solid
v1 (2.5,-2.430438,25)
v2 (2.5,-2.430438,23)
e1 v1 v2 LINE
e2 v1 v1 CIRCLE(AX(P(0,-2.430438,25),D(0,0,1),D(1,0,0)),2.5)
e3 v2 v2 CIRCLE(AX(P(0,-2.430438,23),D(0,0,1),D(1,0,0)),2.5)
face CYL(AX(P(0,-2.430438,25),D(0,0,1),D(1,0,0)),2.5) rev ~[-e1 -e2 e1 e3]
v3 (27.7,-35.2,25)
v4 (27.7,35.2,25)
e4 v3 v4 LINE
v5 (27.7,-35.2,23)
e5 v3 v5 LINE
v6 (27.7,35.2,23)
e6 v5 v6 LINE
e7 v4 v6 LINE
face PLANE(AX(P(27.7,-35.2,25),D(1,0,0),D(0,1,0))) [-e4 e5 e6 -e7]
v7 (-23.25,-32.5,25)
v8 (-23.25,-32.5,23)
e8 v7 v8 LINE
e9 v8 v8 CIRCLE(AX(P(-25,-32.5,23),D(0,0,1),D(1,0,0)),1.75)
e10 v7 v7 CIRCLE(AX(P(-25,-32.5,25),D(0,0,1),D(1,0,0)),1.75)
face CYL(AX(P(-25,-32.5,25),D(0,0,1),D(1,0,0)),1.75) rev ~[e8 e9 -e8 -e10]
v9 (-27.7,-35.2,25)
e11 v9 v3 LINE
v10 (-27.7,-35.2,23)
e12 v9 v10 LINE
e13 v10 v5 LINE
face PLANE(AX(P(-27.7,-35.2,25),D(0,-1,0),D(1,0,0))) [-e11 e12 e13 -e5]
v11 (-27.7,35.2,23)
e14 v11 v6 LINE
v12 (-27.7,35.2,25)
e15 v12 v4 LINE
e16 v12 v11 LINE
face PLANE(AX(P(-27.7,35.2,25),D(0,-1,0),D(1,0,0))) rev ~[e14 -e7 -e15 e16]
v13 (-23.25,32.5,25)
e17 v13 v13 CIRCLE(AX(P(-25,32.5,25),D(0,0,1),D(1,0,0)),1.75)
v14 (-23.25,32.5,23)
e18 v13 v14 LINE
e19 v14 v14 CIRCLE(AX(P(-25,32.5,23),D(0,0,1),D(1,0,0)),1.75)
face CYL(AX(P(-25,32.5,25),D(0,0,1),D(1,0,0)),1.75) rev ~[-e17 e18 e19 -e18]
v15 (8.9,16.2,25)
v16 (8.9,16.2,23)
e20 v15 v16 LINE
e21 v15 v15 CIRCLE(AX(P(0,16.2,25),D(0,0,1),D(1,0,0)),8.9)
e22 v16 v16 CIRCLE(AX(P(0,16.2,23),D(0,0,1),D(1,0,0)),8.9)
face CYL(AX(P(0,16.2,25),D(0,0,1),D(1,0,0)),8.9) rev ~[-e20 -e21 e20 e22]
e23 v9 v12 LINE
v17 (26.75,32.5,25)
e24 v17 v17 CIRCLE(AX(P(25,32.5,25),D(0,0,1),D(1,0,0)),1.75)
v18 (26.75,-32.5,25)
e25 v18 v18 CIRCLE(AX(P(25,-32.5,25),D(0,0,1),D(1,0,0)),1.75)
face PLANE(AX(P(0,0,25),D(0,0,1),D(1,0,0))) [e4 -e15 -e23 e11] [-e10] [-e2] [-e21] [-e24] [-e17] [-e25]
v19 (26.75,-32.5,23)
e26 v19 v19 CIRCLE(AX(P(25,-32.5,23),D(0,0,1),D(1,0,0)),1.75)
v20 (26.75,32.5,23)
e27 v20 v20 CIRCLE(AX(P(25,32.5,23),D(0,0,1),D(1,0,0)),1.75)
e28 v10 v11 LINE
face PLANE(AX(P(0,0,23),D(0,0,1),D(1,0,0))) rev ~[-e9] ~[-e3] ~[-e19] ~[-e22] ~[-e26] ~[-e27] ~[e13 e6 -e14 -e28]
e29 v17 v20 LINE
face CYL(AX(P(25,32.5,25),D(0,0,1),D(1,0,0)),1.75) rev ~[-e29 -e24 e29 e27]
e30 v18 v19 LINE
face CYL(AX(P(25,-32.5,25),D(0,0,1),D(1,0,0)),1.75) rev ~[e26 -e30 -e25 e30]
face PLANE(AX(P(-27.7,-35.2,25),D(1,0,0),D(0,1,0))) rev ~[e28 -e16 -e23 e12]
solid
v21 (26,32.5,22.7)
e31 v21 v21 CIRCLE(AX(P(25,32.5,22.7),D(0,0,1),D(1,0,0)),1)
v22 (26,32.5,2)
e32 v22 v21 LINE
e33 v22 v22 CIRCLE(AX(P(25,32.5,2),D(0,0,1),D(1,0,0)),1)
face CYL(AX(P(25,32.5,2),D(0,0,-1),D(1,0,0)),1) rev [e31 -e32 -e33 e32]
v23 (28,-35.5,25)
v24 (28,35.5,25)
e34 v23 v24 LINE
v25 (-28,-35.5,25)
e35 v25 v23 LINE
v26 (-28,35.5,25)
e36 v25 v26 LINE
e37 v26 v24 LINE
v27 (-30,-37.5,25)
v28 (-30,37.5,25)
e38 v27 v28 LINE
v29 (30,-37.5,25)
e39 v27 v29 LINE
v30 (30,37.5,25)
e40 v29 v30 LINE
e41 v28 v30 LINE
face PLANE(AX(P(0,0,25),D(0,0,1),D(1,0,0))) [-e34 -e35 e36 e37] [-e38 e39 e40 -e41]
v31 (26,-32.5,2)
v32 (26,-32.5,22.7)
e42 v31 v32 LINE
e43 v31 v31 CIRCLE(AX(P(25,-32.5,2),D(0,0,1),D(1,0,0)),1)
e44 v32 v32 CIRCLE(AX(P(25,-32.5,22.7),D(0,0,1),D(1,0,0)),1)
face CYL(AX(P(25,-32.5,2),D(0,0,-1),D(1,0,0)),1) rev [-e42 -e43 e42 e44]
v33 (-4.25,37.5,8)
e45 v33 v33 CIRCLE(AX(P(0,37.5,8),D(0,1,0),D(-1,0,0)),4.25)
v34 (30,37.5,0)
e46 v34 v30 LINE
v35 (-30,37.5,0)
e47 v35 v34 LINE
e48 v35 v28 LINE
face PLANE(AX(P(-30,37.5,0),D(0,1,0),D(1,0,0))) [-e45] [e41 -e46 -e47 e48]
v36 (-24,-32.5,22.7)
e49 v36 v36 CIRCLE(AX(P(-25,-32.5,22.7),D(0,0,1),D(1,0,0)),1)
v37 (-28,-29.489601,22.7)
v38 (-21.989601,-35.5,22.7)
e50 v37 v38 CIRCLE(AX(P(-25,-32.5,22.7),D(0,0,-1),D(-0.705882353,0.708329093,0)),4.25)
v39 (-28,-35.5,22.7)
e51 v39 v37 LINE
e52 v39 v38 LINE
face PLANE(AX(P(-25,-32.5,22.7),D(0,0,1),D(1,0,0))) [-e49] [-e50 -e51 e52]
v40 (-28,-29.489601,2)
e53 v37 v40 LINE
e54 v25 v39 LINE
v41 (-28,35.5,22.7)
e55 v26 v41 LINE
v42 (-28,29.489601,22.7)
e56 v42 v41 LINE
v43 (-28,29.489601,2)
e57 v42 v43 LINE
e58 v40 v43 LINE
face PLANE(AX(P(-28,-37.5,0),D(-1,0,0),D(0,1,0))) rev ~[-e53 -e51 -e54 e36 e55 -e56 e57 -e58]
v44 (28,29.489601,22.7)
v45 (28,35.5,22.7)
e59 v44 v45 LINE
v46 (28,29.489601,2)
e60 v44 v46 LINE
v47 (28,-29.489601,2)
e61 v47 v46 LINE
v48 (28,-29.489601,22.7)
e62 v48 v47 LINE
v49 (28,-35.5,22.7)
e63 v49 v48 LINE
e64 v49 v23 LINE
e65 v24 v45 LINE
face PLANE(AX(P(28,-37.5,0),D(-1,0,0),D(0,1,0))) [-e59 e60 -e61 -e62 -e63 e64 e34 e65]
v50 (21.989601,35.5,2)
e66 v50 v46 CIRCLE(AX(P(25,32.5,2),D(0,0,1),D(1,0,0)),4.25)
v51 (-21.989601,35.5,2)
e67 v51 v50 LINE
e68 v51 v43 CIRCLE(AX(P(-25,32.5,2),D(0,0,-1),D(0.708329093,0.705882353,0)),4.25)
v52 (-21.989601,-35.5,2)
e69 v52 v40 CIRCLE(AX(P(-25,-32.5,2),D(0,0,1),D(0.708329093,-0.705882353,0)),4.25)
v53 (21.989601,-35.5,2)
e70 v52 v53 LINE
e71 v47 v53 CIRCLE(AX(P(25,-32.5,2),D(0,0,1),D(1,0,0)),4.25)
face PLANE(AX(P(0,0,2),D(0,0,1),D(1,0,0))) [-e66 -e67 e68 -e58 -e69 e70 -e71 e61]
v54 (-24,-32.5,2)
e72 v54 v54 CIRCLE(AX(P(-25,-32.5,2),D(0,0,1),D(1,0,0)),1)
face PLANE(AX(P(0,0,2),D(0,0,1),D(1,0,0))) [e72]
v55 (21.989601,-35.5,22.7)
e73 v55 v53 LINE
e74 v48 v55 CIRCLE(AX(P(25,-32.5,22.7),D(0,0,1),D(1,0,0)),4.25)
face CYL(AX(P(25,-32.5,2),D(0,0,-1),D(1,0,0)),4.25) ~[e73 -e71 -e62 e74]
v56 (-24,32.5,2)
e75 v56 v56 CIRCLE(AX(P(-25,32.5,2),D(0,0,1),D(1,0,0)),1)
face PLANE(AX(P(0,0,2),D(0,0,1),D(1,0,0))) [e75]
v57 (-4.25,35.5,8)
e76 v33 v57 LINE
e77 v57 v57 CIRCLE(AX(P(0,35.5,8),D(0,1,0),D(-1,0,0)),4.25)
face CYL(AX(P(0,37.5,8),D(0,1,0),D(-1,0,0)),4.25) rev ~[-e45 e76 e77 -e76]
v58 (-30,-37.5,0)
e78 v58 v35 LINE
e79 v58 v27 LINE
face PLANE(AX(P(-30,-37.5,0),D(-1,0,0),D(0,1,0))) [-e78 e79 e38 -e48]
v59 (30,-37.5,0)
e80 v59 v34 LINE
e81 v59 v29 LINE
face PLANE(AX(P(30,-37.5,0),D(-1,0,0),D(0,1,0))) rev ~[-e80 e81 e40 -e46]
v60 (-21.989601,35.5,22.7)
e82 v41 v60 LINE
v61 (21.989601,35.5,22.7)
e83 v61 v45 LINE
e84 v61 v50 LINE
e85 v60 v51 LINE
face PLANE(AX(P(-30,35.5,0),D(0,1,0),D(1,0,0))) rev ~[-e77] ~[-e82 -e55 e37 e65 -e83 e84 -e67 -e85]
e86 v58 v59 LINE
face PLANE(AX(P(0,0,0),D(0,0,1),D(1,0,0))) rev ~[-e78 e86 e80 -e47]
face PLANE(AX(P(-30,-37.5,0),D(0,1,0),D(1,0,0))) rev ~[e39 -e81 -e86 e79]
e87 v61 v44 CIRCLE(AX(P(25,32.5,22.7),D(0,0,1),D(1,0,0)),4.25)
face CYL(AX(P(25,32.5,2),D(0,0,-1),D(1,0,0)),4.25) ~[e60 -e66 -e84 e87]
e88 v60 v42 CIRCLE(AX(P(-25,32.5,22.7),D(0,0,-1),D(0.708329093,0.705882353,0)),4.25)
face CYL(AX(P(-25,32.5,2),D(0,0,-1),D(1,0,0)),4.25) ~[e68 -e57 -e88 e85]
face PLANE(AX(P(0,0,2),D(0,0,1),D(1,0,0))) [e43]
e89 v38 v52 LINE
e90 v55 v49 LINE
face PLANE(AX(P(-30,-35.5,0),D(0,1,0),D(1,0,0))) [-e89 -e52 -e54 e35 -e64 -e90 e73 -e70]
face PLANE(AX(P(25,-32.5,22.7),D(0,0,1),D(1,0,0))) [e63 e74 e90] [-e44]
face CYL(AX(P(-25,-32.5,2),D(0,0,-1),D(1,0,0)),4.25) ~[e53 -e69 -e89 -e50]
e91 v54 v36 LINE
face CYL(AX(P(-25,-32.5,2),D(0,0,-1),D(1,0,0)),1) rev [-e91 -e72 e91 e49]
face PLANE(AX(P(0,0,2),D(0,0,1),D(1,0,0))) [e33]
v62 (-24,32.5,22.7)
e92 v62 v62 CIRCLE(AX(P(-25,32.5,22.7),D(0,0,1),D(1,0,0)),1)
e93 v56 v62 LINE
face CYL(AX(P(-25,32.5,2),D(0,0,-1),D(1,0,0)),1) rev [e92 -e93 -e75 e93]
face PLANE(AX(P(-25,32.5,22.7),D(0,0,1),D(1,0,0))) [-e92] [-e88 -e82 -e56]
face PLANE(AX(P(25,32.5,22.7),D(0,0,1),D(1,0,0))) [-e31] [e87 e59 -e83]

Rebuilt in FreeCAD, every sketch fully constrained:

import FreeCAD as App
import Part
import Sketcher

V = App.Vector
Q = App.Units.Quantity


def faces_at(feature, points):
    """Names of the faces that lie closest to the given points."""
    faces = feature.Shape.Faces
    near = lambda p: min(range(len(faces)), key=lambda i: faces[i].distToShape(Part.Vertex(*p))[0])
    return sorted({f"Face{near(p) + 1}" for p in points})

doc = App.newDocument("Part")
body = doc.addObject("PartDesign::Body", "Body")

# Sketch on XY plane
sketch1 = body.newObject("Sketcher::SketchObject", "Sketch")
sketch1.AttachmentSupport = (doc.getObject("XY_Plane"), [""])
sketch1.MapMode = "FlatFace"
sketch1.addGeometry(Part.LineSegment(V(-30, 38, 0), V(-30, -38, 0)), False)
sketch1.addGeometry(Part.LineSegment(V(-30, -38, 0), V(30, -38, 0)), False)
sketch1.addGeometry(Part.LineSegment(V(30, -38, 0), V(30, 38, 0)), False)
sketch1.addGeometry(Part.LineSegment(V(30, 38, 0), V(-30, 38, 0)), False)
sketch1.addConstraint(Sketcher.Constraint("Coincident", 0, 2, 1, 1))
sketch1.addConstraint(Sketcher.Constraint("Coincident", 1, 2, 2, 1))
sketch1.addConstraint(Sketcher.Constraint("Coincident", 2, 2, 3, 1))
sketch1.addConstraint(Sketcher.Constraint("Coincident", 3, 2, 0, 1))
sketch1.addConstraint(Sketcher.Constraint("Vertical", 0))
sketch1.addConstraint(Sketcher.Constraint("Horizontal", 1))
sketch1.addConstraint(Sketcher.Constraint("Vertical", 2))
sketch1.addConstraint(Sketcher.Constraint("Horizontal", 3))
sketch1.addConstraint(Sketcher.Constraint("Symmetric", 0, 2, 2, 2, -1, 1))
sketch1.addConstraint(Sketcher.Constraint("DistanceX", 1, 1, 1, 2, Q("60 mm")))
sketch1.addConstraint(Sketcher.Constraint("DistanceY", 0, 2, 0, 1, Q("75 mm")))
pad1 = body.newObject("PartDesign::Pad", "Pad")
pad1.Profile = sketch1
pad1.Length = 25
doc.recompute()

thickness = body.newObject("PartDesign::Thickness", "Thickness")
thickness.Base = (pad1, faces_at(pad1, [(0, 0, 25)]))
thickness.Value = 2
thickness.Reversed = True
thickness.Join = "Arc"

# Sketch on XY plane
sketch2 = body.newObject("Sketcher::SketchObject", "Sketch001")
sketch2.AttachmentSupport = (doc.getObject("XY_Plane"), [""])
sketch2.MapMode = "FlatFace"
sketch2.AttachmentOffset = App.Placement(V(0, 0, 2), App.Rotation())
sketch2.addGeometry(Part.Circle(V(-25, -32.5, 0), V(0, 0, 1), 4.2), False)
sketch2.addGeometry(Part.Circle(V(-25, -32.5, 0), V(0, 0, 1), 1), False)
sketch2.addGeometry(Part.Circle(V(25, -32.5, 0), V(0, 0, 1), 4.2), False)
sketch2.addGeometry(Part.Circle(V(25, -32.5, 0), V(0, 0, 1), 1), False)
sketch2.addGeometry(Part.Circle(V(25, 32.5, 0), V(0, 0, 1), 4.2), False)
sketch2.addGeometry(Part.Circle(V(25, 32.5, 0), V(0, 0, 1), 1), False)
sketch2.addGeometry(Part.Circle(V(-25, 32.5, 0), V(0, 0, 1), 4.2), False)
sketch2.addGeometry(Part.Circle(V(-25, 32.5, 0), V(0, 0, 1), 1), False)
sketch2.addConstraint(Sketcher.Constraint("Coincident", 1, 3, 0, 3))
sketch2.addConstraint(Sketcher.Constraint("Coincident", 3, 3, 2, 3))
sketch2.addConstraint(Sketcher.Constraint("Coincident", 5, 3, 4, 3))
sketch2.addConstraint(Sketcher.Constraint("Coincident", 7, 3, 6, 3))
sketch2.addConstraint(Sketcher.Constraint("Equal", 0, 2))
sketch2.addConstraint(Sketcher.Constraint("Equal", 1, 3))
sketch2.addConstraint(Sketcher.Constraint("Equal", 2, 4))
sketch2.addConstraint(Sketcher.Constraint("Equal", 3, 5))
sketch2.addConstraint(Sketcher.Constraint("Equal", 4, 6))
sketch2.addConstraint(Sketcher.Constraint("Equal", 5, 7))
sketch2.addConstraint(Sketcher.Constraint("Symmetric", 0, 3, 4, 3, -1, 1))
sketch2.addConstraint(Sketcher.Constraint("Symmetric", 2, 3, 6, 3, -1, 1))
sketch2.addConstraint(Sketcher.Constraint("Symmetric", 0, 3, 2, 3, -2))
sketch2.addConstraint(Sketcher.Constraint("Diameter", 1, Q("2 mm")))
sketch2.addConstraint(Sketcher.Constraint("Diameter", 0, Q("8.5 mm")))
sketch2.addConstraint(Sketcher.Constraint("DistanceX", 0, 3, -1, 1, Q("25 mm")))
sketch2.addConstraint(Sketcher.Constraint("DistanceY", 2, 3, 4, 3, Q("65 mm")))
pad2 = body.newObject("PartDesign::Pad", "Pad001")
pad2.Profile = sketch2
pad2.Length = 20.7

# Sketch on XZ plane
sketch3 = body.newObject("Sketcher::SketchObject", "Sketch002")
sketch3.AttachmentSupport = (doc.getObject("XZ_Plane"), [""])
sketch3.MapMode = "FlatFace"
sketch3.AttachmentOffset = App.Placement(V(0, 0, -37.5), App.Rotation())
sketch3.addGeometry(Part.Circle(V(0, 8, 0), V(0, 0, 1), 4.2), False)
sketch3.addConstraint(Sketcher.Constraint("PointOnObject", 0, 3, -2))
sketch3.addConstraint(Sketcher.Constraint("Diameter", 0, Q("8.5 mm")))
sketch3.addConstraint(Sketcher.Constraint("DistanceY", -1, 1, 0, 3, Q("8 mm")))
pocket1 = body.newObject("PartDesign::Pocket", "Pocket")
pocket1.Profile = sketch3
pocket1.Length = 2
pocket1.Reversed = True
body2 = doc.addObject("PartDesign::Body", "Body001")

# Sketch on XY plane
sketch4 = body2.newObject("Sketcher::SketchObject", "Sketch003")
sketch4.AttachmentSupport = (doc.getObject("XY_Plane001"), [""])
sketch4.MapMode = "FlatFace"
sketch4.AttachmentOffset = App.Placement(V(0, 0, 25), App.Rotation())
sketch4.addGeometry(Part.LineSegment(V(-27.7, 35.2, 0), V(-27.7, -35.2, 0)), False)
sketch4.addGeometry(Part.LineSegment(V(-27.7, -35.2, 0), V(27.7, -35.2, 0)), False)
sketch4.addGeometry(Part.LineSegment(V(27.7, -35.2, 0), V(27.7, 35.2, 0)), False)
sketch4.addGeometry(Part.LineSegment(V(27.7, 35.2, 0), V(-27.7, 35.2, 0)), False)
sketch4.addGeometry(Part.Circle(V(-25, -32.5, 0), V(0, 0, 1), 1.8), False)
sketch4.addGeometry(Part.Circle(V(25, -32.5, 0), V(0, 0, 1), 1.8), False)
sketch4.addGeometry(Part.Circle(V(-25, 32.5, 0), V(0, 0, 1), 1.8), False)
sketch4.addGeometry(Part.Circle(V(25, 32.5, 0), V(0, 0, 1), 1.8), False)
sketch4.addConstraint(Sketcher.Constraint("Coincident", 0, 2, 1, 1))
sketch4.addConstraint(Sketcher.Constraint("Coincident", 1, 2, 2, 1))
sketch4.addConstraint(Sketcher.Constraint("Coincident", 2, 2, 3, 1))
sketch4.addConstraint(Sketcher.Constraint("Coincident", 3, 2, 0, 1))
sketch4.addConstraint(Sketcher.Constraint("Vertical", 0))
sketch4.addConstraint(Sketcher.Constraint("Horizontal", 1))
sketch4.addConstraint(Sketcher.Constraint("Vertical", 2))
sketch4.addConstraint(Sketcher.Constraint("Horizontal", 3))
sketch4.addConstraint(Sketcher.Constraint("Equal", 4, 5))
sketch4.addConstraint(Sketcher.Constraint("Equal", 5, 6))
sketch4.addConstraint(Sketcher.Constraint("Equal", 6, 7))
sketch4.addConstraint(Sketcher.Constraint("Symmetric", 5, 3, 6, 3, -1, 1))
sketch4.addConstraint(Sketcher.Constraint("Symmetric", 4, 3, 7, 3, -1, 1))
sketch4.addConstraint(Sketcher.Constraint("Symmetric", 0, 2, 2, 2, -1, 1))
sketch4.addConstraint(Sketcher.Constraint("Symmetric", 4, 3, 5, 3, -2))
sketch4.addConstraint(Sketcher.Constraint("Diameter", 4, Q("3.5 mm")))
sketch4.addConstraint(Sketcher.Constraint("DistanceX", 1, 1, 1, 2, Q("55.4 mm")))
sketch4.addConstraint(Sketcher.Constraint("DistanceY", 0, 2, 0, 1, Q("70.4 mm")))
sketch4.addConstraint(Sketcher.Constraint("DistanceX", 4, 3, -1, 1, Q("25 mm")))
sketch4.addConstraint(Sketcher.Constraint("DistanceY", 4, 3, 6, 3, Q("65 mm")))
pad3 = body2.newObject("PartDesign::Pad", "Pad002")
pad3.Profile = sketch4
pad3.Length = 2
pad3.Reversed = True

# Sketch on XY plane
sketch5 = body2.newObject("Sketcher::SketchObject", "Sketch004")
sketch5.AttachmentSupport = (doc.getObject("XY_Plane001"), [""])
sketch5.MapMode = "FlatFace"
sketch5.AttachmentOffset = App.Placement(V(0, 0, 25), App.Rotation())
sketch5.addGeometry(Part.Circle(V(0, 16.2, 0), V(0, 0, 1), 8.9), False)
sketch5.addGeometry(Part.Circle(V(0, -2.4, 0), V(0, 0, 1), 2.5), False)
sketch5.addConstraint(Sketcher.Constraint("PointOnObject", 0, 3, -2))
sketch5.addConstraint(Sketcher.Constraint("PointOnObject", 1, 3, -2))
sketch5.addConstraint(Sketcher.Constraint("Diameter", 1, Q("5 mm")))
sketch5.addConstraint(Sketcher.Constraint("Diameter", 0, Q("17.8 mm")))
sketch5.addConstraint(Sketcher.Constraint("DistanceY", -1, 1, 0, 3, Q("16.2 mm")))
sketch5.addConstraint(Sketcher.Constraint("DistanceY", 1, 3, -1, 1, Q("2.430438 mm")))
pocket2 = body2.newObject("PartDesign::Pocket", "Pocket001")
pocket2.Profile = sketch5
pocket2.Type = "ThroughAll"

doc.recompute()
